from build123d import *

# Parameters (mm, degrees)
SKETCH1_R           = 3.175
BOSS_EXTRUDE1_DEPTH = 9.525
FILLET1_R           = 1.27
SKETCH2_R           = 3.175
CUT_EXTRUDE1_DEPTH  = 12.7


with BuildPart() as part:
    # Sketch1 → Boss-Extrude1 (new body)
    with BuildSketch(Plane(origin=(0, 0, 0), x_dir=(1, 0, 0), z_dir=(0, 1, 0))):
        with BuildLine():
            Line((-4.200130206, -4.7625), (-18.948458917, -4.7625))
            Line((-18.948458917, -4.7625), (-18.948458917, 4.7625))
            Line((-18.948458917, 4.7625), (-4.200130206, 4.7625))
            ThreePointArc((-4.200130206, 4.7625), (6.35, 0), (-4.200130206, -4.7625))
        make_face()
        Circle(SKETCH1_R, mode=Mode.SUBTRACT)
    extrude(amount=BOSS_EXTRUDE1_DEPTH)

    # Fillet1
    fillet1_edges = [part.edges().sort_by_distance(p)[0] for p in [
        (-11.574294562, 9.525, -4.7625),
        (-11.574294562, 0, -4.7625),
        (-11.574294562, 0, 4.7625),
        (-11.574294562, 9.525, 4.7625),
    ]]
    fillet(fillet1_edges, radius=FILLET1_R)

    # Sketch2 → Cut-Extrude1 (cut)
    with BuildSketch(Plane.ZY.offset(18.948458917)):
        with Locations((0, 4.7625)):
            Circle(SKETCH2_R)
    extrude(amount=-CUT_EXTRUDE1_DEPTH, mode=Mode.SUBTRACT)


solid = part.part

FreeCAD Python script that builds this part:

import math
import FreeCAD as App
import Part
import Sketcher

V = App.Vector
Q = App.Units.Quantity


def edges_at(feature, points):
    """Names of the edges that pass closest to the given points."""
    edges = feature.Shape.Edges
    near = lambda p: min(range(len(edges)), key=lambda i: edges[i].distToShape(Part.Vertex(*p))[0])
    return sorted({f"Edge{near(p) + 1}" for p in points})

doc = App.newDocument("Part")
params = doc.addObject("Spreadsheet::Sheet", "Params")
for row, (alias, value) in enumerate([
    ("sketch1_diameter", "0.25 in"),
    ("sketch1_radius", "0.25 in"),
    ("sketch1_height", "0.375 in"),
    ("pad1_length", "0.375 in"),
    ("fillet_radius", "0.05 in"),
    ("sketch2_diameter", "0.25 in"),
    ("pocket1_length", "0.5 in"),
], start=1):
    params.set(f"A{row}", alias)
    params.set(f"B{row}", "=" + value)
    params.setAlias(f"B{row}", alias)

body = doc.addObject("PartDesign::Body", "Body")

# Sketch on XZ plane
sketch1 = body.newObject("Sketcher::SketchObject", "Sketch")
sketch1.AttachmentSupport = (doc.getObject("XZ_Plane"), [""])
sketch1.MapMode = "FlatFace"
sketch1.addGeometry(Part.LineSegment(V(-18.948459, 4.7625, 0), V(-4.20013, 4.7625, 0)), False)
sketch1.addGeometry(Part.ArcOfCircle(Part.Circle(V(0, 0, 0), V(0, 0, 1), 6.35), math.radians(-131.409622), math.radians(131.409622)), False)
sketch1.addGeometry(Part.LineSegment(V(-4.20013, -4.7625, 0), V(-18.948459, -4.7625, 0)), False)
sketch1.addGeometry(Part.LineSegment(V(-18.948459, -4.7625, 0), V(-18.948459, 4.7625, 0)), False)
sketch1.addGeometry(Part.Circle(V(0, 0, 0), V(0, 0, 1), 3.175), False)
sketch1.addConstraint(Sketcher.Constraint("Coincident", 0, 2, 1, 2))
sketch1.addConstraint(Sketcher.Constraint("Coincident", 1, 1, 2, 1))
sketch1.addConstraint(Sketcher.Constraint("Coincident", 2, 2, 3, 1))
sketch1.addConstraint(Sketcher.Constraint("Coincident", 3, 2, 0, 1))
sketch1.addConstraint(Sketcher.Constraint("Horizontal", 0))
sketch1.addConstraint(Sketcher.Constraint("Horizontal", 2))
sketch1.addConstraint(Sketcher.Constraint("Vertical", 3))
sketch1.addConstraint(Sketcher.Constraint("Coincident", 1, 3, -1, 1))
sketch1.addConstraint(Sketcher.Constraint("Coincident", 4, 3, -1, 1))
sketch1.addConstraint(Sketcher.Constraint("Vertical", 0, 2, 1, 1))
sketch1.addConstraint(Sketcher.Constraint("Diameter", 4, Q("0.25 in")))
sketch1.addConstraint(Sketcher.Constraint("Radius", 1, Q("0.25 in")))
sketch1.addConstraint(Sketcher.Constraint("DistanceY", 3, 1, 3, 2, Q("0.375 in")))
sketch1.addConstraint(Sketcher.Constraint("DistanceX", 0, 1, 0, 2, Q("14.748329 mm")))
sketch1.setExpression("Constraints[10]", "Params.sketch1_diameter")
sketch1.setExpression("Constraints[11]", "Params.sketch1_radius")
sketch1.setExpression("Constraints[12]", "Params.sketch1_height")
pad1 = body.newObject("PartDesign::Pad", "Pad")
pad1.Profile = sketch1
pad1.setExpression("Length", "Params.pad1_length")
pad1.Reversed = True
doc.recompute()

fillet = body.newObject("PartDesign::Fillet", "Fillet")
fillet.Base = (pad1, edges_at(pad1, [
    (-11.574, 9.525, -4.763),
    (-11.574, 0, -4.763),
    (-11.574, 0, 4.763),
    (-11.574, 9.525, 4.763),
]))
fillet.setExpression("Radius", "Params.fillet_radius")

# Sketch on YZ plane
sketch2 = body.newObject("Sketcher::SketchObject", "Sketch001")
sketch2.AttachmentSupport = (doc.getObject("YZ_Plane"), [""])
sketch2.MapMode = "FlatFace"
sketch2.AttachmentOffset = App.Placement(V(0, 0, -18.948459), App.Rotation())
sketch2.addGeometry(Part.Circle(V(4.7625, 0, 0), V(0, 0, 1), 3.175), False)
sketch2.addConstraint(Sketcher.Constraint("PointOnObject", 0, 3, -1))
sketch2.addConstraint(Sketcher.Constraint("Diameter", 0, Q("0.25 in")))
sketch2.addConstraint(Sketcher.Constraint("DistanceX", -1, 1, 0, 3, Q("0.1875 in")))
sketch2.setExpression("Constraints[1]", "Params.sketch2_diameter")
pocket1 = body.newObject("PartDesign::Pocket", "Pocket")
pocket1.Profile = sketch2
pocket1.setExpression("Length", "Params.pocket1_length")
pocket1.Reversed = True

doc.recompute()
